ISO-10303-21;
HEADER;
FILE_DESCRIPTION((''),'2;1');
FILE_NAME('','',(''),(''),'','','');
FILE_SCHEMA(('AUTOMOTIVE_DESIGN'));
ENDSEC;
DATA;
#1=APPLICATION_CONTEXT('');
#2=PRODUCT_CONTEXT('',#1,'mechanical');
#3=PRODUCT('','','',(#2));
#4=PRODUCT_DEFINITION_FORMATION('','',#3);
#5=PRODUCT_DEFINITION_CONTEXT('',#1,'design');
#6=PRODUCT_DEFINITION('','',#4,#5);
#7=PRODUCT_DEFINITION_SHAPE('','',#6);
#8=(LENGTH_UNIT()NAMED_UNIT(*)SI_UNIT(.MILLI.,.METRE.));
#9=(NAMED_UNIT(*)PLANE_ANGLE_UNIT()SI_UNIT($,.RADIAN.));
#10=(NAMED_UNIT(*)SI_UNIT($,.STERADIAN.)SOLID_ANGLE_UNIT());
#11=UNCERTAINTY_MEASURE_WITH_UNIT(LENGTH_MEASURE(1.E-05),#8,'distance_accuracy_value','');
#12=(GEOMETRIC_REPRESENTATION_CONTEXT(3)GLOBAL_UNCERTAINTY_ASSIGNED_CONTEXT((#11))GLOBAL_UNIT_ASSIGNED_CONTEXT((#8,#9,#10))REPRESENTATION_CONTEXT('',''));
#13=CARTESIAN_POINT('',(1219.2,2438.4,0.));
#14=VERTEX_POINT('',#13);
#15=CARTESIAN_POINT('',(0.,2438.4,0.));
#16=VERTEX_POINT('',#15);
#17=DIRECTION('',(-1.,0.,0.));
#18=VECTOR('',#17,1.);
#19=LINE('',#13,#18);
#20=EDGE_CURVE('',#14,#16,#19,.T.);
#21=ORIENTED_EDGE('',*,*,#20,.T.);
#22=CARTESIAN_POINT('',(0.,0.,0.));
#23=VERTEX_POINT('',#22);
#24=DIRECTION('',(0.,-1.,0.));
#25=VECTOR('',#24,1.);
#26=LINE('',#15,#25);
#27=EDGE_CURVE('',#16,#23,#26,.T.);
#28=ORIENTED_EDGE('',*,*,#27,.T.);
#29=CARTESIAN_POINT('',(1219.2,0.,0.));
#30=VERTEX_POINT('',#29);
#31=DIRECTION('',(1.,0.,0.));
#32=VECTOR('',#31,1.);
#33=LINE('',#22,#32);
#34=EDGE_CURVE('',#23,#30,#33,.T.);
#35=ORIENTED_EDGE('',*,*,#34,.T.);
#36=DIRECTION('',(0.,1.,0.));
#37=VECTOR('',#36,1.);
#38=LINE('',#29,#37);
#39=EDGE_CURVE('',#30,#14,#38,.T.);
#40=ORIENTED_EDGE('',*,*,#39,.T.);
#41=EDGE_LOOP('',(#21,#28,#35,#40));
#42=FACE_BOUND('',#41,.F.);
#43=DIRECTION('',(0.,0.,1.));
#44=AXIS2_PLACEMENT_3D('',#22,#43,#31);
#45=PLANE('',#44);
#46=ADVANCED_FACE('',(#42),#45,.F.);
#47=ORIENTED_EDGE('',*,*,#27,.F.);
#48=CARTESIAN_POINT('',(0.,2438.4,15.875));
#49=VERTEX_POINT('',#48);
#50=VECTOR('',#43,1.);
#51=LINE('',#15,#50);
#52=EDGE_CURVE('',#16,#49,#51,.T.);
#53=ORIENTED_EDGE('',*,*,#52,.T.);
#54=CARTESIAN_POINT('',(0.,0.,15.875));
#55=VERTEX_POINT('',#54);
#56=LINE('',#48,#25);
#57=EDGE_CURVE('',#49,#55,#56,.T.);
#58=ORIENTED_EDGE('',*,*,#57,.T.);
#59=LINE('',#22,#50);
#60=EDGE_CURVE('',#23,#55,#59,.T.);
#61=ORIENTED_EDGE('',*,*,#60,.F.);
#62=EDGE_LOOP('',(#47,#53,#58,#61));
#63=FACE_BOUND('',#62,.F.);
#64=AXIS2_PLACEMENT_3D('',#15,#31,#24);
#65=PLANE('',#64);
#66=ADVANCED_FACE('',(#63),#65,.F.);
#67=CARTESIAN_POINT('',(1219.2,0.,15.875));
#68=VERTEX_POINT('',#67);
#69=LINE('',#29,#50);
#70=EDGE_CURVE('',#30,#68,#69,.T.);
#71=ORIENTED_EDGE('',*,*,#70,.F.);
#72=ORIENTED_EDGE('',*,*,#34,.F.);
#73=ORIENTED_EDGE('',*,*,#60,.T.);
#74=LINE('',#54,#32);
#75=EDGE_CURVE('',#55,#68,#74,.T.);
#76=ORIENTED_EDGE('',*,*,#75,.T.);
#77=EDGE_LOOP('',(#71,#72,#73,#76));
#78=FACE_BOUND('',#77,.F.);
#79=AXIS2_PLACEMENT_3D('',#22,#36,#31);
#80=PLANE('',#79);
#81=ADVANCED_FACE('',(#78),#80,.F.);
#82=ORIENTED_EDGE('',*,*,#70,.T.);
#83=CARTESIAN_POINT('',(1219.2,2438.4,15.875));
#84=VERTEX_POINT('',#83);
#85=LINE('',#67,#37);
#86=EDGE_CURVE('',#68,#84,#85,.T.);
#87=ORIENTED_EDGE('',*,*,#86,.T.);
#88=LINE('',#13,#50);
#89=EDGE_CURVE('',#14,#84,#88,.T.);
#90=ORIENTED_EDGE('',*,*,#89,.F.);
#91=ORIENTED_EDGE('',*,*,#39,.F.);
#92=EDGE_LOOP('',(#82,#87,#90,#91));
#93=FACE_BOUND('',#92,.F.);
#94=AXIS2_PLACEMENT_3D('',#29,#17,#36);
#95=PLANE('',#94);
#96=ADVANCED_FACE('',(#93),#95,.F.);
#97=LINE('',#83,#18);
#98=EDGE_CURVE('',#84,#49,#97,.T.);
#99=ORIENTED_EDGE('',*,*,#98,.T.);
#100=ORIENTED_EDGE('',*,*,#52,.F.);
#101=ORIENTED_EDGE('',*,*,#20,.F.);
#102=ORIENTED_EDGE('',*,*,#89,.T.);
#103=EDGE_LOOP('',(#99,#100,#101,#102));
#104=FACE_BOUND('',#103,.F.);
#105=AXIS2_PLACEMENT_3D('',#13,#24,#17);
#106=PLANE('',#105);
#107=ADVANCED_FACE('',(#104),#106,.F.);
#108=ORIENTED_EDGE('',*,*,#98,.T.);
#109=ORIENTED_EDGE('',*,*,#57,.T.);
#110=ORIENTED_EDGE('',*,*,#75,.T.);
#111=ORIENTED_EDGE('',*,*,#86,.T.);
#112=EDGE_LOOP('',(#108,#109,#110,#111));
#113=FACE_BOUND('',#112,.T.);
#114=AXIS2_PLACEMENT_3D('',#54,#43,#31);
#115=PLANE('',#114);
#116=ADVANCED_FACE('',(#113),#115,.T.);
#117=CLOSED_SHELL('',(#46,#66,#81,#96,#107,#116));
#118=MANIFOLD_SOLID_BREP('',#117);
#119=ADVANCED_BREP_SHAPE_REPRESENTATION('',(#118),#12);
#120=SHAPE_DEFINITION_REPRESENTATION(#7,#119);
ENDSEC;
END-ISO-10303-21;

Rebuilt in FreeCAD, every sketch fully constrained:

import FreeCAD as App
import Part
import Sketcher

V = App.Vector
Q = App.Units.Quantity


def add_polygon(sketch, points):
    """Adds a closed chain of lines whose ends are joined by coincident constraints."""
    first, n = sketch.GeometryCount, len(points)
    for a, b in zip(points, points[1:] + points[:1]):
        sketch.addGeometry(Part.LineSegment(App.Vector(*a, 0), App.Vector(*b, 0)), False)
    for i in range(n):
        sketch.addConstraint(Sketcher.Constraint("Coincident", first + i, 2, first + (i + 1) % n, 1))

doc = App.newDocument("Part")
body = doc.addObject("PartDesign::Body", "Body")

# Sketch on XY plane
sketch1 = body.newObject("Sketcher::SketchObject", "Sketch")
sketch1.AttachmentSupport = (doc.getObject("XY_Plane"), [""])
sketch1.MapMode = "FlatFace"
add_polygon(sketch1, [(0, 2438), (0, 0), (1219, 0), (1219, 2438)])  # lines 0-3
sketch1.addConstraint(Sketcher.Constraint("Vertical", 0))
sketch1.addConstraint(Sketcher.Constraint("Horizontal", 1))
sketch1.addConstraint(Sketcher.Constraint("Vertical", 2))
sketch1.addConstraint(Sketcher.Constraint("Horizontal", 3))
sketch1.addConstraint(Sketcher.Constraint("Coincident", 0, 2, -1, 1))
sketch1.addConstraint(Sketcher.Constraint("DistanceX", 1, 1, 1, 2, Q("48 in")))
sketch1.addConstraint(Sketcher.Constraint("DistanceY", 0, 2, 0, 1, Q("96 in")))
pad1 = body.newObject("PartDesign::Pad", "Pad")
pad1.Profile = sketch1
pad1.Length = Q("0.625 in")

doc.recompute()
